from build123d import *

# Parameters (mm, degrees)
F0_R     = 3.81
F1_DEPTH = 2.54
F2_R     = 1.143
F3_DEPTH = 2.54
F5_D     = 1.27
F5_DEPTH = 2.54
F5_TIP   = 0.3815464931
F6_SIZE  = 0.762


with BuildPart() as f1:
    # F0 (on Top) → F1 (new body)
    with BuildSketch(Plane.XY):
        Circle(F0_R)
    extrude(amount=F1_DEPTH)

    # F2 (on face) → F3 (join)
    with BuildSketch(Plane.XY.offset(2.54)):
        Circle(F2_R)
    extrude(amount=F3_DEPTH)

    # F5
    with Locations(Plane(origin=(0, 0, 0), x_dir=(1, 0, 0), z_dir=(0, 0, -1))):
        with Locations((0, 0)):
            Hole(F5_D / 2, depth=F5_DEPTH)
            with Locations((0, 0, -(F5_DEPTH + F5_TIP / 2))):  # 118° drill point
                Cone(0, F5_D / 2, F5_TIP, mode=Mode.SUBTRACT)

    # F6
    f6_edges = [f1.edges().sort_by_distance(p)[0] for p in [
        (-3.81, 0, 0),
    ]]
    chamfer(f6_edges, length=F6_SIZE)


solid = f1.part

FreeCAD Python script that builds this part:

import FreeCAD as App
import Part
import Sketcher

V = App.Vector
Q = App.Units.Quantity


def edges_at(feature, points):
    """Names of the edges that pass closest to the given points."""
    edges = feature.Shape.Edges
    near = lambda p: min(range(len(edges)), key=lambda i: edges[i].distToShape(Part.Vertex(*p))[0])
    return sorted({f"Edge{near(p) + 1}" for p in points})

doc = App.newDocument("Part")
body = doc.addObject("PartDesign::Body", "Body")

sketch1 = body.newObject("Sketcher::SketchObject", "Sketch")
sketch1.AttachmentSupport = (doc.getObject("XY_Plane"), [""])
sketch1.MapMode = "FlatFace"
sketch1.addGeometry(Part.Circle(V(0, 0, 0), V(0, 0, 1), 3.8), False)
sketch1.addConstraint([
    Sketcher.Constraint("Coincident", 0, 3, -1, 1),
    Sketcher.Constraint("Diameter", 0, Q("0.3 in")),
])
pad1 = body.newObject("PartDesign::Pad", "Pad")
pad1.Profile = sketch1
pad1.Length = Q("0.1 in")

sketch2 = body.newObject("Sketcher::SketchObject", "Sketch001")
sketch2.AttachmentSupport = (doc.getObject("XY_Plane"), [""])
sketch2.MapMode = "FlatFace"
sketch2.AttachmentOffset = App.Placement(V(0, 0, 0.1 * 25.4), App.Rotation())
sketch2.addGeometry(Part.Circle(V(0, 0, 0), V(0, 0, 1), 1.1), False)
sketch2.addConstraint([
    Sketcher.Constraint("Coincident", 0, 3, -1, 1),
    Sketcher.Constraint("Diameter", 0, Q("0.09 in")),
])
pad2 = body.newObject("PartDesign::Pad", "Pad001")
pad2.Profile = sketch2
pad2.Length = Q("0.1 in")

sketch3 = body.newObject("Sketcher::SketchObject", "Sketch002")
sketch3.AttachmentSupport = (doc.getObject("XY_Plane"), [""])
sketch3.MapMode = "FlatFace"
sketch3.addGeometry(Part.Circle(V(0, 0, 0), V(0, 0, 1), 0.6), False)
sketch3.addConstraint([
    Sketcher.Constraint("Coincident", 0, 3, -1, 1),
    Sketcher.Constraint("Diameter", 0, Q("0.05 in")),
])
doc.recompute()
hole = body.newObject("PartDesign::Hole", "Hole")
hole.Profile = sketch3
hole.ThreadType = "None"
hole.Diameter = Q("0.05 in")
hole.DepthType = "Dimension"
hole.Depth = Q("0.1 in")
hole.DrillPoint = "Angled"
hole.DrillPointAngle = 118
hole.Reversed = True
doc.recompute()

chamfer = body.newObject("PartDesign::Chamfer", "Chamfer")
chamfer.Base = (hole, edges_at(hole, [(-3.81, 0, 0)]))
chamfer.Size = Q("0.03 in")

doc.recompute()
